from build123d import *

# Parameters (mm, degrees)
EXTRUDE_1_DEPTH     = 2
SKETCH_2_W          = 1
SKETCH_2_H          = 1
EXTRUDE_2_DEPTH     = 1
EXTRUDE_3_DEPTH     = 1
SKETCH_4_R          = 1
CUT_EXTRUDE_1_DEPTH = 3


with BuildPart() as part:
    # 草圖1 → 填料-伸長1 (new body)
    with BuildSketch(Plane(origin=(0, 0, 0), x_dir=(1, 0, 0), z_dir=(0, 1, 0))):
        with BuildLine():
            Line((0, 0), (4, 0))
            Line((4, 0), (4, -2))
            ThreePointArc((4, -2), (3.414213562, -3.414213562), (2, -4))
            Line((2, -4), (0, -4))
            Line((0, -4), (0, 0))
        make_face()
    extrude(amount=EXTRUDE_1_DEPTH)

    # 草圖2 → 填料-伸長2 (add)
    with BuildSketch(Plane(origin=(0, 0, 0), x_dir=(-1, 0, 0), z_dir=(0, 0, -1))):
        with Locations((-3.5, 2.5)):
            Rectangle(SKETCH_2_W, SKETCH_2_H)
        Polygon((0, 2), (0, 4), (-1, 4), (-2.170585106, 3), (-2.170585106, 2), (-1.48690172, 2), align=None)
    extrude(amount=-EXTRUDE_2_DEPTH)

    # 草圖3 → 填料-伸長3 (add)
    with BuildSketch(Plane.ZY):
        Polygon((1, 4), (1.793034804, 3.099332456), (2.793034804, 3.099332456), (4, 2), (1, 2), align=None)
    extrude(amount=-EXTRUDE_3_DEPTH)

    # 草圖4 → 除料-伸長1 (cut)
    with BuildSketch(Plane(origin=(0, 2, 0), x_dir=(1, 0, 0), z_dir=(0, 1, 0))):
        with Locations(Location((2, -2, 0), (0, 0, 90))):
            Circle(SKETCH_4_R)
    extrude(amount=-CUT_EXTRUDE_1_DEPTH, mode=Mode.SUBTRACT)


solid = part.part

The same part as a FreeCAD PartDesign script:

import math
import FreeCAD as App
import Part
import Sketcher
from FreeCAD import Vector


def add_polygon(sketch, points):
    """Adds a closed chain of lines whose ends are joined by coincident constraints."""
    first, n = sketch.GeometryCount, len(points)
    for a, b in zip(points, points[1:] + points[:1]):
        sketch.addGeometry(Part.LineSegment(App.Vector(*a, 0), App.Vector(*b, 0)), False)
    for i in range(n):
        sketch.addConstraint(Sketcher.Constraint("Coincident", first + i, 2, first + (i + 1) % n, 1))

doc = App.newDocument("Part")
body = doc.addObject("PartDesign::Body", "Body")

sketch1 = doc.addObject("Sketcher::SketchObject", "Sketch")
body.addObject(sketch1)
sketch1.AttachmentSupport = (doc.XZ_Plane, [""])
sketch1.MapMode = "FlatFace"
sketch1.addGeometry(Part.LineSegment(Vector(4, 0, 0), Vector(0, 0, 0)), False)
sketch1.addGeometry(Part.LineSegment(Vector(0, 0, 0), Vector(0, 4, 0)), False)
sketch1.addGeometry(Part.LineSegment(Vector(0, 4, 0), Vector(2, 4, 0)), False)
sketch1.addGeometry(Part.ArcOfCircle(Part.Circle(Vector(2, 2, 0), Vector(0, 0, 1), 2), math.radians(0), math.radians(90)), False)
sketch1.addGeometry(Part.LineSegment(Vector(4, 2, 0), Vector(4, 0, 0)), False)
sketch1.addConstraint(Sketcher.Constraint("Coincident", 0, 2, 1, 1))
sketch1.addConstraint(Sketcher.Constraint("Coincident", 1, 2, 2, 1))
sketch1.addConstraint(Sketcher.Constraint("Tangent", 2, 2, 3, 2))
sketch1.addConstraint(Sketcher.Constraint("Tangent", 3, 1, 4, 1))
sketch1.addConstraint(Sketcher.Constraint("Coincident", 4, 2, 0, 1))
sketch1.addConstraint(Sketcher.Constraint("Horizontal", 0))
sketch1.addConstraint(Sketcher.Constraint("Vertical", 1))
sketch1.addConstraint(Sketcher.Constraint("Horizontal", 2))
sketch1.addConstraint(Sketcher.Constraint("Vertical", 4))
sketch1.addConstraint(Sketcher.Constraint("Coincident", 0, 2, -1, 1))
sketch1.addConstraint(Sketcher.Constraint("Equal", 0, 1))
sketch1.addConstraint(Sketcher.Constraint("Radius", 3, 2.0))
sketch1.addConstraint(Sketcher.Constraint("DistanceX", 0, 2, 0, 1, 4.0))
pad1 = doc.addObject("PartDesign::Pad", "Pad")
body.addObject(pad1)
pad1.Profile = sketch1
pad1.Length = 2
pad1.Reversed = True

sketch2 = doc.addObject("Sketcher::SketchObject", "Sketch001")
body.addObject(sketch2)
sketch2.AttachmentSupport = (doc.XY_Plane, [""])
sketch2.MapMode = "FlatFace"
add_polygon(sketch2, [(4, 3), (4, 2), (3, 2), (3, 3)])
add_polygon(sketch2, [(0, 2), (0, 4), (1, 4), (2.2, 3), (2.2, 2)])
sketch2.addConstraint(Sketcher.Constraint("Vertical", 0))
sketch2.addConstraint(Sketcher.Constraint("Horizontal", 1))
sketch2.addConstraint(Sketcher.Constraint("Vertical", 2))
sketch2.addConstraint(Sketcher.Constraint("Horizontal", 3))
sketch2.addConstraint(Sketcher.Constraint("Vertical", 4))
sketch2.addConstraint(Sketcher.Constraint("Horizontal", 5))
sketch2.addConstraint(Sketcher.Constraint("Vertical", 7))
sketch2.addConstraint(Sketcher.Constraint("Horizontal", 8))
sketch2.addConstraint(Sketcher.Constraint("PointOnObject", 4, 2, -2))
sketch2.addConstraint(Sketcher.Constraint("Horizontal", 3, 2, 6, 2))
sketch2.addConstraint(Sketcher.Constraint("Horizontal", 1, 2, 7, 2))
sketch2.addConstraint(Sketcher.Constraint("Equal", 3, 5))
sketch2.addConstraint(Sketcher.Constraint("Equal", 5, 0))
sketch2.addConstraint(Sketcher.Constraint("DistanceX", 1, 2, 1, 1, 1.0))
sketch2.addConstraint(Sketcher.Constraint("DistanceY", 4, 1, 4, 2, 2.0))
sketch2.addConstraint(Sketcher.Constraint("DistanceX", -1, 1, 0, 2, 4.0))
sketch2.addConstraint(Sketcher.Constraint("DistanceY", -1, 1, 0, 2, 2.0))
sketch2.addConstraint(Sketcher.Constraint("DistanceX", 8, 2, 8, 1, 2.170585))
pad2 = doc.addObject("PartDesign::Pad", "Pad001")
body.addObject(pad2)
pad2.Profile = sketch2
pad2.Length = 1

sketch3 = doc.addObject("Sketcher::SketchObject", "Sketch002")
body.addObject(sketch3)
sketch3.AttachmentSupport = (doc.YZ_Plane, [""])
sketch3.MapMode = "FlatFace"
add_polygon(sketch3, [(3.1, 1.8), (4, 1), (2, 1), (2, 4), (3.1, 2.8)])
sketch3.addConstraint(Sketcher.Constraint("Horizontal", 1))
sketch3.addConstraint(Sketcher.Constraint("Vertical", 2))
sketch3.addConstraint(Sketcher.Constraint("Vertical", 4))
sketch3.addConstraint(Sketcher.Constraint("DistanceX", 1, 2, 1, 1, 2.0))
sketch3.addConstraint(Sketcher.Constraint("DistanceY", 2, 1, 2, 2, 3.0))
sketch3.addConstraint(Sketcher.Constraint("DistanceY", 4, 2, 4, 1, 1.0))
sketch3.addConstraint(Sketcher.Constraint("DistanceX", -1, 1, 0, 2, 4.0))
sketch3.addConstraint(Sketcher.Constraint("DistanceY", -1, 1, 0, 2, 1.0))
sketch3.addConstraint(Sketcher.Constraint("Distance", 0, 1.200044))
sketch3.addConstraint(Sketcher.Constraint("Distance", 3, 1.632574))
pad3 = doc.addObject("PartDesign::Pad", "Pad002")
body.addObject(pad3)
pad3.Profile = sketch3
pad3.Length = 1

sketch4 = doc.addObject("Sketcher::SketchObject", "Sketch003")
body.addObject(sketch4)
sketch4.AttachmentSupport = (doc.XZ_Plane, [""])
sketch4.MapMode = "FlatFace"
sketch4.AttachmentOffset = App.Placement(Vector(0, 0, -2), App.Rotation())
sketch4.addGeometry(Part.Circle(Vector(2, 2, 0), Vector(0, 0, 1), 1), False)
sketch4.addConstraint(Sketcher.Constraint("Diameter", 0, 2.0))
sketch4.addConstraint(Sketcher.Constraint("DistanceX", -1, 1, 0, 3, 2.0))
sketch4.addConstraint(Sketcher.Constraint("DistanceY", -1, 1, 0, 3, 2.0))
pocket1 = doc.addObject("PartDesign::Pocket", "Pocket")
body.addObject(pocket1)
pocket1.Profile = sketch4
pocket1.Length = 3
pocket1.Reversed = True

doc.recompute()
